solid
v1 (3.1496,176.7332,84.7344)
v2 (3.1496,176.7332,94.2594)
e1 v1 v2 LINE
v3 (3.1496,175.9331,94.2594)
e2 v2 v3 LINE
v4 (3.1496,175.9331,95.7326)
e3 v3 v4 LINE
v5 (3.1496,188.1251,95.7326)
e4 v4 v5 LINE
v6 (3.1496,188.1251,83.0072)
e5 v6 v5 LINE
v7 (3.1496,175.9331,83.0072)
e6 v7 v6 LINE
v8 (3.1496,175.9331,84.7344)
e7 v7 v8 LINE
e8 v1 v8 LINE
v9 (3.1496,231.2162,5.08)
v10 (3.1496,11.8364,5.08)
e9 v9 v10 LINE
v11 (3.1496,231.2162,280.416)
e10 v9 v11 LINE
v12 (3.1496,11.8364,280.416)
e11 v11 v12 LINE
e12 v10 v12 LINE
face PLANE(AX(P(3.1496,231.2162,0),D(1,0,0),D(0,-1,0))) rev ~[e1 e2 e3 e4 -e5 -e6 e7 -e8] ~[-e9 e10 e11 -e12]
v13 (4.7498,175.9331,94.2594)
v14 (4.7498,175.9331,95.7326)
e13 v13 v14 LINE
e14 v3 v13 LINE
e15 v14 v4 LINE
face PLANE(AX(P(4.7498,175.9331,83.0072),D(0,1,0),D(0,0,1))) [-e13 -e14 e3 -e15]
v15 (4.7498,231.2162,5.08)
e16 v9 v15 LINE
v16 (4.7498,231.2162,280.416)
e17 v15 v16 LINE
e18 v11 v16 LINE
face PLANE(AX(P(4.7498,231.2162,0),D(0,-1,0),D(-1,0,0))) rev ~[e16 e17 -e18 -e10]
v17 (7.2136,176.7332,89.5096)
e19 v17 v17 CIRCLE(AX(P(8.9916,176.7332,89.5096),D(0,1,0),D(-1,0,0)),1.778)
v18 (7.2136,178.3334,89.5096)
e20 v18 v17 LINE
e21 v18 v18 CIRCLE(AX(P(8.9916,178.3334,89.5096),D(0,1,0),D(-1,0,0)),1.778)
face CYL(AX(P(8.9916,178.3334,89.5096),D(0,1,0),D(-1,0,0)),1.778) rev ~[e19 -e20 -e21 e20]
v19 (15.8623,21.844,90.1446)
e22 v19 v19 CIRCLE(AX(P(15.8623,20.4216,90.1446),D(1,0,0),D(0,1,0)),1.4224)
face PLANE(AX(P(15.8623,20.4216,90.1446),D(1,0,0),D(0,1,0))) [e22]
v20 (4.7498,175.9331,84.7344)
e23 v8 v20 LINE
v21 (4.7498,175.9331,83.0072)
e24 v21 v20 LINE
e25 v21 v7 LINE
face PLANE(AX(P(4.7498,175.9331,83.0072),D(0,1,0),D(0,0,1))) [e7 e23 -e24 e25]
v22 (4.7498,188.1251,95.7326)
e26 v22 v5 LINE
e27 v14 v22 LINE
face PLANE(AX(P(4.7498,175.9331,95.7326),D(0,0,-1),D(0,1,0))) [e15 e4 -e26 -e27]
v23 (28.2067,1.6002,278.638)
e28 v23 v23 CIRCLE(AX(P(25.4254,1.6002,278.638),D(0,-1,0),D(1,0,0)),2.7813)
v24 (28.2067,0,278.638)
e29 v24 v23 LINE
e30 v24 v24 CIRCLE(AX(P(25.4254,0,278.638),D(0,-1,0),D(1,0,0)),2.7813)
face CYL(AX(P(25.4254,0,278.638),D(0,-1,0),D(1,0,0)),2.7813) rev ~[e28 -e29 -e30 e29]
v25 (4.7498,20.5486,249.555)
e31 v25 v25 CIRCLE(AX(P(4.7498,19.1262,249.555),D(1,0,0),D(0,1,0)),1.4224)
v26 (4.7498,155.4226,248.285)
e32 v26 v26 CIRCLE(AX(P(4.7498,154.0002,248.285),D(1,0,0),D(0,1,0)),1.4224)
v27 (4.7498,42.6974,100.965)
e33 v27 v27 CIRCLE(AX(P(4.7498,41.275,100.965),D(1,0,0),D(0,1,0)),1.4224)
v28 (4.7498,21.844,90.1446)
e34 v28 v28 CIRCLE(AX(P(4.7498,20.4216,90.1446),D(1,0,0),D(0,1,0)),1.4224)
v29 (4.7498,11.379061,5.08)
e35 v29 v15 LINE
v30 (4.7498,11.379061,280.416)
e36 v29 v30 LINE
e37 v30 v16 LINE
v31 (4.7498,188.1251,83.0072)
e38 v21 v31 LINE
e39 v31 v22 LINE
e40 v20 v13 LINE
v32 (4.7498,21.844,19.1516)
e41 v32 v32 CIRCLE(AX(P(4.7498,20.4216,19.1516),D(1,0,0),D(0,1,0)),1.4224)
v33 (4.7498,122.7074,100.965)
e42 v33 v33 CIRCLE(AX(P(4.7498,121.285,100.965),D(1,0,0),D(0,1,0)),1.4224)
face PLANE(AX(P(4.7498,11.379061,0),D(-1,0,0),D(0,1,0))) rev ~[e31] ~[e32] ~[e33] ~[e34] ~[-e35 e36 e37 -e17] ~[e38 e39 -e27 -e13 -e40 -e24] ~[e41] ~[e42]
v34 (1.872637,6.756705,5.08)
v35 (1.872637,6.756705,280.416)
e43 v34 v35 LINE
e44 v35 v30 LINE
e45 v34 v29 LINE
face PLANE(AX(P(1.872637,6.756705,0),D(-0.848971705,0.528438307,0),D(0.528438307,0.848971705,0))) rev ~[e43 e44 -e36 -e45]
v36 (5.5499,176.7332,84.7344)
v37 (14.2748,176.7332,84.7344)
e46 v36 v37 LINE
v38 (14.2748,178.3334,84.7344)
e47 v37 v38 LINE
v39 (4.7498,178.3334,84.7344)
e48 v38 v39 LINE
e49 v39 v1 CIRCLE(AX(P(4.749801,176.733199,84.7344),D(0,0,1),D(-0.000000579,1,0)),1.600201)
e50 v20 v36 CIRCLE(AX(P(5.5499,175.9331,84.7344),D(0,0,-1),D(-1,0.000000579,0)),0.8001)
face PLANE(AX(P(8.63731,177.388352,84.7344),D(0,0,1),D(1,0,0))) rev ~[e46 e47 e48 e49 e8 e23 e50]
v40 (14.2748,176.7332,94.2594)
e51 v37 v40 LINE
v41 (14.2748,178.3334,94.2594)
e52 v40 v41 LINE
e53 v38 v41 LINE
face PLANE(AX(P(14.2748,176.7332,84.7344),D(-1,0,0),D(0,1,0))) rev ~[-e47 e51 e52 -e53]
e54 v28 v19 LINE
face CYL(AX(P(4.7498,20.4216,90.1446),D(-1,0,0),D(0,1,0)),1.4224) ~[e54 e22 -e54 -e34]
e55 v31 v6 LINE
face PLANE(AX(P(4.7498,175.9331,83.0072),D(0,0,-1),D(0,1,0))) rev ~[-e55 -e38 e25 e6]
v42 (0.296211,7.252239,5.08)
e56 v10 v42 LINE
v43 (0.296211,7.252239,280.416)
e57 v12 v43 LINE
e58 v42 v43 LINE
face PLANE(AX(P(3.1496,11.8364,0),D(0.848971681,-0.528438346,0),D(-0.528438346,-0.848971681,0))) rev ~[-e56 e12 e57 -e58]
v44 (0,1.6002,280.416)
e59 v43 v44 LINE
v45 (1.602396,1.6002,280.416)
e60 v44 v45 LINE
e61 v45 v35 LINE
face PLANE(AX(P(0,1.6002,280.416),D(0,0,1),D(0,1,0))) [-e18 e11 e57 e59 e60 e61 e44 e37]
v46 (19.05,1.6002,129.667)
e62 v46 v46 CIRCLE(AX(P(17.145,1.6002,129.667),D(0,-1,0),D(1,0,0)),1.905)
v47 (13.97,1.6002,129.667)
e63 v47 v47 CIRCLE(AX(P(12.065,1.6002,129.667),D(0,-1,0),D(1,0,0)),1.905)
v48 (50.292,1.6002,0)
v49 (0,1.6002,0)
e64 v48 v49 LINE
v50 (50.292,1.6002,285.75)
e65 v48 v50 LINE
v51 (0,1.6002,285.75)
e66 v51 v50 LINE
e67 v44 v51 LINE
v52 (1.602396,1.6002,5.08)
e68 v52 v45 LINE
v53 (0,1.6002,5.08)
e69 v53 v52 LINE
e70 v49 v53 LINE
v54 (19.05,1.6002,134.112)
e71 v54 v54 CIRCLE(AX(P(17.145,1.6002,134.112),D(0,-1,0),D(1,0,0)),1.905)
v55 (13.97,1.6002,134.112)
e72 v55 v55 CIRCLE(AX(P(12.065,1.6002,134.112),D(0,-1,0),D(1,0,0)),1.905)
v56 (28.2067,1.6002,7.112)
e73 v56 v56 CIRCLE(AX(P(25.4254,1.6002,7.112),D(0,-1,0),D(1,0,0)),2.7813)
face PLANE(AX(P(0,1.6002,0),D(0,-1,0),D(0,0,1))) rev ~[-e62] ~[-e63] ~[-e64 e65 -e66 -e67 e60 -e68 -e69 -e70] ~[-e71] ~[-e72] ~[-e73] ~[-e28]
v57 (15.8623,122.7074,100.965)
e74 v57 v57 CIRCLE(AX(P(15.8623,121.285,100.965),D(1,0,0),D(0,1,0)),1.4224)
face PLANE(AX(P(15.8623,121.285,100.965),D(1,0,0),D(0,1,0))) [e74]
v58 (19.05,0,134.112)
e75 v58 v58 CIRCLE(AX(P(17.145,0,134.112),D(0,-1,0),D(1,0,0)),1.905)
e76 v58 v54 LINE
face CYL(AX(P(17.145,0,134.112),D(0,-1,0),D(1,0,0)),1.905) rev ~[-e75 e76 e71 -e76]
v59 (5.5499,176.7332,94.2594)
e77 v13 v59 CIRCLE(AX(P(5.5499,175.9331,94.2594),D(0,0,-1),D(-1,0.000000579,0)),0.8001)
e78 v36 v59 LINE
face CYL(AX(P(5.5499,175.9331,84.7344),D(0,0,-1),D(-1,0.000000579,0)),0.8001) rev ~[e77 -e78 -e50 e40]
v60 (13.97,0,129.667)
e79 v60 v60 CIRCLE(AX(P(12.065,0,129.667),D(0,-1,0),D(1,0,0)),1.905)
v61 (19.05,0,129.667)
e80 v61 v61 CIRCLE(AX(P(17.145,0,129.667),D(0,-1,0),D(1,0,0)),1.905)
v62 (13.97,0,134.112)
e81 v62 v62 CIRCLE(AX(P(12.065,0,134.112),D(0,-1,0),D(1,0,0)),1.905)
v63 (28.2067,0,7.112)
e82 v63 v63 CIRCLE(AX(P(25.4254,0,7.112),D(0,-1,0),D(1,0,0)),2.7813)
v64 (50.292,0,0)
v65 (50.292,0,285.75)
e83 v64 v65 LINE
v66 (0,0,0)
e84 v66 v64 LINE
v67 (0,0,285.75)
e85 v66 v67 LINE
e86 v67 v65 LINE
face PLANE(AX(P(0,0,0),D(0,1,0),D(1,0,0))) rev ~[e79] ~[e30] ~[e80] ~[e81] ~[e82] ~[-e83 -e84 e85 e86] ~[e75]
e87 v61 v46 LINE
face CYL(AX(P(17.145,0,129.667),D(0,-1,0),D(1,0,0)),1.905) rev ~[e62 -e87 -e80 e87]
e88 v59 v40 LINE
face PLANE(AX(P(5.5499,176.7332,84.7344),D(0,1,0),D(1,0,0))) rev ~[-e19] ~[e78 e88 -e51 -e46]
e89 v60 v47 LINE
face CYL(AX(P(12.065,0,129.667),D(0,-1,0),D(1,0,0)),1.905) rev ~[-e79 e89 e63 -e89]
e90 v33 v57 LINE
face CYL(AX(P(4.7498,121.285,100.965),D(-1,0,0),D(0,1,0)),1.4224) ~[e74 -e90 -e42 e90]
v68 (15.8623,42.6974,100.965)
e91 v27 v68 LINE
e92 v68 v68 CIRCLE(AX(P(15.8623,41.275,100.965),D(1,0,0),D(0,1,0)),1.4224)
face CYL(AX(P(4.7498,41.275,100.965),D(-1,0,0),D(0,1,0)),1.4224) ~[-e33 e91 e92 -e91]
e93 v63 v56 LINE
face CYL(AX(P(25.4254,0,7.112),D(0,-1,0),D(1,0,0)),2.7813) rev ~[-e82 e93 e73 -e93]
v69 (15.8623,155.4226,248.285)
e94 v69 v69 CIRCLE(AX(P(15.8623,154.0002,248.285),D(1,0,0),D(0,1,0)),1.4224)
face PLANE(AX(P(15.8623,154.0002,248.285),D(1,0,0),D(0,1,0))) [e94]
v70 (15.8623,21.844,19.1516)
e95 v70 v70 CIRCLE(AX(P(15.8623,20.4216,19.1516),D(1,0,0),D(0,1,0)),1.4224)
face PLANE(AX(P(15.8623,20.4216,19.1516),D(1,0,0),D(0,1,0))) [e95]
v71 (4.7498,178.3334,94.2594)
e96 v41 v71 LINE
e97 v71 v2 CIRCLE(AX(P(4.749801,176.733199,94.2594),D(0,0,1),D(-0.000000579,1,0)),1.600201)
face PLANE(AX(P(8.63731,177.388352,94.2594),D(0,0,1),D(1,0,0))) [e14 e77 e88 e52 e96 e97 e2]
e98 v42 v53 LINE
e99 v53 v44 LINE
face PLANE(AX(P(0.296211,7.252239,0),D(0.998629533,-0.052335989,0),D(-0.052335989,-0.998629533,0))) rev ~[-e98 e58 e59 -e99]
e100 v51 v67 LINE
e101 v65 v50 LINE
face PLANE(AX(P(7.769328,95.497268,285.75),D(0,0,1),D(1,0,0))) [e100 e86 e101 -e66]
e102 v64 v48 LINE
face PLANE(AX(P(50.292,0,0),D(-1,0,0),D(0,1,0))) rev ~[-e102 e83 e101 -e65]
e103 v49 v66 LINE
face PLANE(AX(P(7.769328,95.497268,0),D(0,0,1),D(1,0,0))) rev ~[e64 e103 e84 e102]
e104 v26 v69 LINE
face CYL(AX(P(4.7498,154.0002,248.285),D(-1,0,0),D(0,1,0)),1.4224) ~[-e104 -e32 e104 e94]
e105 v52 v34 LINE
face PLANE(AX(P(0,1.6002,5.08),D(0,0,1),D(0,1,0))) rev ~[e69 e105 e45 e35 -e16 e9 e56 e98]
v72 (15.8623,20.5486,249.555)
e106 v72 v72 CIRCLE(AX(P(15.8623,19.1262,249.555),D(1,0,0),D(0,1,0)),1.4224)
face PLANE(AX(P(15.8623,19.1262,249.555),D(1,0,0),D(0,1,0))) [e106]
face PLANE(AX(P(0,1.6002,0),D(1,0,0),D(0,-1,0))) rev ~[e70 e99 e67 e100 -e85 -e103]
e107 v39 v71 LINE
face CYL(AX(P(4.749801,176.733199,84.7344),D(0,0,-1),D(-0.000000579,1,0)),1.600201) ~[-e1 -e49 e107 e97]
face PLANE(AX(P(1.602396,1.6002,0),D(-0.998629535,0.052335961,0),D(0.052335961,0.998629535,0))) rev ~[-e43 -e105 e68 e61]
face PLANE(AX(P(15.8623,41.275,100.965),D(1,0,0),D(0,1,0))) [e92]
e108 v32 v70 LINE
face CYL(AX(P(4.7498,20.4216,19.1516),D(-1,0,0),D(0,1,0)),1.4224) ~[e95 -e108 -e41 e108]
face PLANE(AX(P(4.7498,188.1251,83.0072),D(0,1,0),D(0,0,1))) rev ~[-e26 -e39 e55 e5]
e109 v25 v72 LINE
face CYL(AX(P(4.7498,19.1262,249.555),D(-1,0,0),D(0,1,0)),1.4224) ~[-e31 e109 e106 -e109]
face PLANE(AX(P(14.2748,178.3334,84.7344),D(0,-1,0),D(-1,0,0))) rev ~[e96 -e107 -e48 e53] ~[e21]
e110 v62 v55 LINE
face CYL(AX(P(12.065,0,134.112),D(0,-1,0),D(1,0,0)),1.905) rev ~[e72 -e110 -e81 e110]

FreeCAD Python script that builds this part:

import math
import FreeCAD as App
import Part
import Sketcher
from FreeCAD import Vector
Q = App.Units.Quantity

doc = App.newDocument("Part")
body = doc.addObject("PartDesign::Body", "Body")

# Sketch on XY plane
sketch1 = body.newObject("Sketcher::SketchObject", "Sketch")
sketch1.AttachmentSupport = (doc.getObject("XY_Plane"), [""])
sketch1.MapMode = "FlatFace"
sketch1.addGeometry([
    Part.LineSegment(Vector(0, 1.6, 0), Vector(0, 0, 0)),  # 0
    Part.LineSegment(Vector(0, 0, 0), Vector(50.3, 0, 0)),  # 1
    Part.LineSegment(Vector(50.3, 0, 0), Vector(50.3, 1.6, 0)),  # 2
    Part.LineSegment(Vector(50.3, 1.6, 0), Vector(1.6, 1.6, 0)),  # 3
    Part.LineSegment(Vector(1.6, 1.6, 0), Vector(1.9, 6.8, 0)),  # 4
    Part.LineSegment(Vector(1.9, 6.8, 0), Vector(4.7, 11.4, 0)),  # 5
    Part.LineSegment(Vector(4.7, 11.4, 0), Vector(4.7, 231.2, 0)),  # 6
    Part.LineSegment(Vector(4.7, 231.2, 0), Vector(3.1, 231.2, 0)),  # 7
    Part.LineSegment(Vector(3.1, 231.2, 0), Vector(3.1, 11.8, 0)),  # 8
    Part.LineSegment(Vector(3.1, 11.8, 0), Vector(0.3, 7.3, 0)),  # 9
    Part.LineSegment(Vector(0.3, 7.3, 0), Vector(0, 1.6, 0)),  # 10
], False)
sketch1.addConstraint([
    Sketcher.Constraint("Coincident", 0, 2, 1, 1),
    Sketcher.Constraint("Coincident", 1, 2, 2, 1),
    Sketcher.Constraint("Coincident", 2, 2, 3, 1),
    Sketcher.Constraint("Coincident", 3, 2, 4, 1),
    Sketcher.Constraint("Coincident", 4, 2, 5, 1),
    Sketcher.Constraint("Coincident", 5, 2, 6, 1),
    Sketcher.Constraint("Coincident", 6, 2, 7, 1),
    Sketcher.Constraint("Coincident", 7, 2, 8, 1),
    Sketcher.Constraint("Coincident", 8, 2, 9, 1),
    Sketcher.Constraint("Coincident", 9, 2, 10, 1),
    Sketcher.Constraint("Coincident", 10, 2, 0, 1),
    Sketcher.Constraint("Vertical", 0),
    Sketcher.Constraint("Horizontal", 1),
    Sketcher.Constraint("Vertical", 2),
    Sketcher.Constraint("Horizontal", 3),
    Sketcher.Constraint("Vertical", 6),
    Sketcher.Constraint("Horizontal", 7),
    Sketcher.Constraint("Vertical", 8),
    Sketcher.Constraint("Coincident", 0, 2, -1, 1),
    Sketcher.Constraint("Parallel", 5, 9),
    Sketcher.Constraint("Parallel", 4, 10),
    Sketcher.Constraint("Horizontal", 3, 2, 10, 2),
    Sketcher.Constraint("Equal", 7, 0),
    Sketcher.Constraint("Angle", 4, Q("87 deg")),
    Sketcher.Constraint("DistanceX", 1, 1, 1, 2, Q("1.98 in")),
    Sketcher.Constraint("Angle", 5, Q("58.100002 deg")),
    Sketcher.Constraint("DistanceX", 7, 2, 7, 1, Q("0.063 in")),
    Sketcher.Constraint("DistanceY", 8, 2, 8, 1, Q("8.637 in")),
    Sketcher.Constraint("DistanceY", 3, 2, 6, 2, Q("9.04 in")),
    Sketcher.Constraint("DistanceX", -1, 1, 5, 2, Q("0.187 in")),
    Sketcher.Constraint("DistanceY", 6, 1, 6, 2, 219.837139),
    Sketcher.Constraint("Distance", 4, 5.163582),
])
pad1 = body.newObject("PartDesign::Pad", "Pad")
pad1.Profile = sketch1
pad1.Length = Q("11.25 in")

# Sketch on YZ plane
sketch2 = body.newObject("Sketcher::SketchObject", "Sketch001")
sketch2.AttachmentSupport = (doc.getObject("YZ_Plane"), [""])
sketch2.MapMode = "FlatFace"
sketch2.addGeometry([
    Part.LineSegment(Vector(2, 5, 0), Vector(2, 0, 0)),
    Part.LineSegment(Vector(2, 0, 0), Vector(231, 0, 0)),
    Part.LineSegment(Vector(231, 0, 0), Vector(231, 5, 0)),
    Part.LineSegment(Vector(231, 5, 0), Vector(2, 5, 0)),
], False)
sketch2.addConstraint([
    Sketcher.Constraint("Coincident", 0, 2, 1, 1),
    Sketcher.Constraint("Coincident", 1, 2, 2, 1),
    Sketcher.Constraint("Coincident", 2, 2, 3, 1),
    Sketcher.Constraint("Coincident", 3, 2, 0, 1),
    Sketcher.Constraint("Vertical", 0),
    Sketcher.Constraint("Horizontal", 1),
    Sketcher.Constraint("Vertical", 2),
    Sketcher.Constraint("Horizontal", 3),
    Sketcher.Constraint("PointOnObject", 0, 2, -1),
    Sketcher.Constraint("DistanceY", 0, 2, 0, 1, Q("0.2 in")),
    Sketcher.Constraint("DistanceX", 1, 1, 1, 2, Q("9.04 in")),
    Sketcher.Constraint("DistanceX", -1, 1, 0, 2, Q("0.063 in")),
])
pocket1 = body.newObject("PartDesign::Pocket", "Pocket")
pocket1.Profile = sketch2
pocket1.Length = Q("0.25 in")
pocket1.Reversed = True

# Sketch on YZ plane
sketch3 = body.newObject("Sketcher::SketchObject", "Sketch002")
sketch3.AttachmentSupport = (doc.getObject("YZ_Plane"), [""])
sketch3.MapMode = "FlatFace"
sketch3.addGeometry([
    Part.LineSegment(Vector(2, 286, 0), Vector(2, 280, 0)),
    Part.LineSegment(Vector(2, 280, 0), Vector(231, 280, 0)),
    Part.LineSegment(Vector(231, 280, 0), Vector(231, 286, 0)),
    Part.LineSegment(Vector(231, 286, 0), Vector(2, 286, 0)),
], False)
sketch3.addConstraint([
    Sketcher.Constraint("Coincident", 0, 2, 1, 1),
    Sketcher.Constraint("Coincident", 1, 2, 2, 1),
    Sketcher.Constraint("Coincident", 2, 2, 3, 1),
    Sketcher.Constraint("Coincident", 3, 2, 0, 1),
    Sketcher.Constraint("Vertical", 0),
    Sketcher.Constraint("Horizontal", 1),
    Sketcher.Constraint("Vertical", 2),
    Sketcher.Constraint("Horizontal", 3),
    Sketcher.Constraint("DistanceX", 1, 1, 1, 2, Q("9.04 in")),
    Sketcher.Constraint("DistanceY", 0, 2, 0, 1, Q("0.21 in")),
    Sketcher.Constraint("DistanceY", -1, 1, 0, 2, Q("11.04 in")),
    Sketcher.Constraint("DistanceX", -1, 1, 0, 2, Q("0.063 in")),
])
pocket2 = body.newObject("PartDesign::Pocket", "Pocket001")
pocket2.Profile = sketch3
pocket2.Length = Q("0.25 in")
pocket2.Reversed = True

# Sketch on YZ plane
sketch4 = body.newObject("Sketcher::SketchObject", "Sketch003")
sketch4.AttachmentSupport = (doc.getObject("YZ_Plane"), [""])
sketch4.MapMode = "FlatFace"
sketch4.AttachmentOffset = App.Placement(Vector(0, 0, 0.187 * 25.4), App.Rotation())
sketch4.addGeometry([
    Part.Circle(Vector(154, 248.3, 0), Vector(0, 0, 1), 1.4),  # 0
    Part.Circle(Vector(19.1, 249.6, 0), Vector(0, 0, 1), 1.4),  # 1
    Part.Circle(Vector(121.3, 101, 0), Vector(0, 0, 1), 1.4),  # 2
    Part.Circle(Vector(20.4, 90.1, 0), Vector(0, 0, 1), 1.4),  # 3
    Part.Circle(Vector(41.3, 101, 0), Vector(0, 0, 1), 1.4),  # 4
    Part.Circle(Vector(20.4, 19.2, 0), Vector(0, 0, 1), 1.4),  # 5
], False)
sketch4.addConstraint([
    Sketcher.Constraint("Equal", 0, 1),
    Sketcher.Constraint("Equal", 1, 2),
    Sketcher.Constraint("Equal", 2, 3),
    Sketcher.Constraint("Equal", 3, 4),
    Sketcher.Constraint("Equal", 4, 5),
    Sketcher.Constraint("Horizontal", 2, 3, 4, 3),
    Sketcher.Constraint("Vertical", 3, 3, 5, 3),
    Sketcher.Constraint("Diameter", 0, Q("0.112 in")),
    Sketcher.Constraint("DistanceY", 2, 3, 0, 3, Q("5.8 in")),
    Sketcher.Constraint("DistanceX", 1, 3, 0, 3, Q("5.31 in")),
    Sketcher.Constraint("DistanceY", 0, 3, 1, 3, Q("0.05 in")),
    Sketcher.Constraint("DistanceX", 4, 3, 2, 3, Q("3.15 in")),
    Sketcher.Constraint("DistanceX", -1, 1, 0, 3, Q("6.063 in")),
    Sketcher.Constraint("DistanceY", -1, 1, 0, 3, Q("9.775 in")),
    Sketcher.Constraint("DistanceX", -1, 1, 2, 3, Q("4.775 in")),
    Sketcher.Constraint("DistanceX", -1, 1, 3, 3, Q("0.804 in")),
    Sketcher.Constraint("DistanceY", -1, 1, 3, 3, Q("3.549 in")),
    Sketcher.Constraint("DistanceY", -1, 1, 5, 3, Q("0.754 in")),
])
pad2 = body.newObject("PartDesign::Pad", "Pad001")
pad2.Profile = sketch4
pad2.Length = Q("0.4375 in")

# Sketch on YZ plane
sketch5 = body.newObject("Sketcher::SketchObject", "Sketch004")
sketch5.AttachmentSupport = (doc.getObject("YZ_Plane"), [""])
sketch5.MapMode = "FlatFace"
sketch5.AttachmentOffset = App.Placement(Vector(0, 0, 0.187 * 25.4), App.Rotation())
sketch5.addGeometry([
    Part.LineSegment(Vector(176, 96, 0), Vector(176, 83, 0)),
    Part.LineSegment(Vector(176, 83, 0), Vector(188, 83, 0)),
    Part.LineSegment(Vector(188, 83, 0), Vector(188, 96, 0)),
    Part.LineSegment(Vector(188, 96, 0), Vector(176, 96, 0)),
], False)
sketch5.addConstraint([
    Sketcher.Constraint("Coincident", 0, 2, 1, 1),
    Sketcher.Constraint("Coincident", 1, 2, 2, 1),
    Sketcher.Constraint("Coincident", 2, 2, 3, 1),
    Sketcher.Constraint("Coincident", 3, 2, 0, 1),
    Sketcher.Constraint("Vertical", 0),
    Sketcher.Constraint("Horizontal", 1),
    Sketcher.Constraint("Vertical", 2),
    Sketcher.Constraint("Horizontal", 3),
    Sketcher.Constraint("DistanceX", 1, 1, 1, 2, Q("0.48 in")),
    Sketcher.Constraint("DistanceY", 0, 2, 0, 1, Q("0.501 in")),
    Sketcher.Constraint("DistanceY", -1, 1, 0, 2, Q("3.268 in")),
    Sketcher.Constraint("DistanceX", -1, 1, 0, 2, Q("6.9265 in")),
])
pocket3 = body.newObject("PartDesign::Pocket", "Pocket002")
pocket3.Profile = sketch5
pocket3.Length = Q("1 in")

# Sketch on XY plane
sketch6 = body.newObject("Sketcher::SketchObject", "Sketch005")
sketch6.AttachmentSupport = (doc.getObject("XY_Plane"), [""])
sketch6.MapMode = "FlatFace"
sketch6.AttachmentOffset = App.Placement(Vector(0, 0, 3.336 * 25.4), App.Rotation())
sketch6.addGeometry([
    Part.LineSegment(Vector(14.3, 176.7, 0), Vector(14.3, 178.3, 0)),  # 0
    Part.LineSegment(Vector(14.3, 178.3, 0), Vector(4.7, 178.3, 0)),  # 1
    Part.ArcOfCircle(Part.Circle(Vector(4.7, 176.7, 0), Vector(0, 0, 1), 1.6), math.radians(90), math.radians(180)),  # 2
    Part.LineSegment(Vector(3.1, 176.7, 0), Vector(3.1, 175.9, 0)),  # 3
    Part.LineSegment(Vector(3.1, 175.9, 0), Vector(4.7, 175.9, 0)),  # 4
    Part.ArcOfCircle(Part.Circle(Vector(5.5, 175.9, 0), Vector(0, 0, 1), 0.8), math.radians(90), math.radians(180)),  # 5
    Part.LineSegment(Vector(5.5, 176.7, 0), Vector(14.3, 176.7, 0)),  # 6
], False)
sketch6.addConstraint([
    Sketcher.Constraint("Coincident", 0, 2, 1, 1),
    Sketcher.Constraint("Tangent", 1, 2, 2, 1),
    Sketcher.Constraint("Tangent", 2, 2, 3, 1),
    Sketcher.Constraint("Coincident", 3, 2, 4, 1),
    Sketcher.Constraint("Coincident", 4, 2, 5, 2),
    Sketcher.Constraint("Tangent", 5, 1, 6, 1),
    Sketcher.Constraint("Coincident", 6, 2, 0, 1),
    Sketcher.Constraint("Vertical", 0),
    Sketcher.Constraint("Horizontal", 1),
    Sketcher.Constraint("Vertical", 3),
    Sketcher.Constraint("Horizontal", 4),
    Sketcher.Constraint("Horizontal", 6),
    Sketcher.Constraint("Horizontal", 5, 3, 3, 2),
    Sketcher.Constraint("Horizontal", 2, 2, 5, 1),
    Sketcher.Constraint("Vertical", 1, 2, 4, 2),
    Sketcher.Constraint("Radius", 2, Q("0.063 in")),
    Sketcher.Constraint("Radius", 5, Q("0.0315 in")),
    Sketcher.Constraint("DistanceX", 1, 2, 1, 1, Q("0.375 in")),
    Sketcher.Constraint("DistanceX", -1, 1, 2, 3, Q("0.187 in")),
    Sketcher.Constraint("DistanceY", -1, 1, 2, 3, Q("6.958 in")),
])
pad3 = body.newObject("PartDesign::Pad", "Pad002")
pad3.Profile = sketch6
pad3.Length = Q("0.375 in")

# Sketch on XZ plane
sketch7 = body.newObject("Sketcher::SketchObject", "Sketch006")
sketch7.AttachmentSupport = (doc.getObject("XZ_Plane"), [""])
sketch7.MapMode = "FlatFace"
sketch7.AttachmentOffset = App.Placement(Vector(0, 0, -7.021 * 25.4), App.Rotation())
sketch7.addGeometry(Part.Circle(Vector(9, 89.5, 0), Vector(0, 0, 1), 1.8), False)
sketch7.addConstraint([
    Sketcher.Constraint("Diameter", 0, Q("0.14 in")),
    Sketcher.Constraint("DistanceX", -1, 1, 0, 3, Q("0.354 in")),
    Sketcher.Constraint("DistanceY", -1, 1, 0, 3, Q("3.524 in")),
])
pocket4 = body.newObject("PartDesign::Pocket", "Pocket003")
pocket4.Profile = sketch7
pocket4.Length = Q("0.063 in")
pocket4.Reversed = True

# Sketch on XZ plane
sketch8 = body.newObject("Sketcher::SketchObject", "Sketch007")
sketch8.AttachmentSupport = (doc.getObject("XZ_Plane"), [""])
sketch8.MapMode = "FlatFace"
sketch8.addGeometry([
    Part.Circle(Vector(12.1, 134.1, 0), Vector(0, 0, 1), 1.9),
    Part.Circle(Vector(17.1, 134.1, 0), Vector(0, 0, 1), 1.9),
    Part.Circle(Vector(12.1, 129.7, 0), Vector(0, 0, 1), 1.9),
    Part.Circle(Vector(17.1, 129.7, 0), Vector(0, 0, 1), 1.9),
], False)
sketch8.addConstraint([
    Sketcher.Constraint("Equal", 0, 1),
    Sketcher.Constraint("Equal", 1, 2),
    Sketcher.Constraint("Equal", 2, 3),
    Sketcher.Constraint("Horizontal", 0, 3, 1, 3),
    Sketcher.Constraint("Horizontal", 2, 3, 3, 3),
    Sketcher.Constraint("Vertical", 0, 3, 2, 3),
    Sketcher.Constraint("Vertical", 1, 3, 3, 3),
    Sketcher.Constraint("Diameter", 0, Q("0.15 in")),
    Sketcher.Constraint("DistanceX", 0, 3, 1, 3, Q("0.2 in")),
    Sketcher.Constraint("DistanceY", -1, 1, 0, 3, Q("5.28 in")),
    Sketcher.Constraint("DistanceX", -1, 1, 0, 3, Q("0.475 in")),
    Sketcher.Constraint("DistanceY", -1, 1, 2, 3, Q("5.105 in")),
])
pocket5 = body.newObject("PartDesign::Pocket", "Pocket004")
pocket5.Profile = sketch8
pocket5.Type = "ThroughAll"

# Sketch on XZ plane
sketch9 = body.newObject("Sketcher::SketchObject", "Sketch008")
sketch9.AttachmentSupport = (doc.getObject("XZ_Plane"), [""])
sketch9.MapMode = "FlatFace"
sketch9.addGeometry([
    Part.Circle(Vector(25.4, 7.1, 0), Vector(0, 0, 1), 2.8),
    Part.Circle(Vector(25.4, 278.6, 0), Vector(0, 0, 1), 2.8),
], False)
sketch9.addConstraint([
    Sketcher.Constraint("Equal", 0, 1),
    Sketcher.Constraint("Vertical", 0, 3, 1, 3),
    Sketcher.Constraint("Diameter", 0, Q("0.219 in")),
    Sketcher.Constraint("DistanceY", -1, 1, 0, 3, Q("0.28 in")),
    Sketcher.Constraint("DistanceY", -1, 1, 1, 3, Q("10.97 in")),
    Sketcher.Constraint("DistanceX", -1, 1, 0, 3, Q("1.001 in")),
])
pocket6 = body.newObject("PartDesign::Pocket", "Pocket005")
pocket6.Profile = sketch9
pocket6.Type = "ThroughAll"

doc.recompute()
